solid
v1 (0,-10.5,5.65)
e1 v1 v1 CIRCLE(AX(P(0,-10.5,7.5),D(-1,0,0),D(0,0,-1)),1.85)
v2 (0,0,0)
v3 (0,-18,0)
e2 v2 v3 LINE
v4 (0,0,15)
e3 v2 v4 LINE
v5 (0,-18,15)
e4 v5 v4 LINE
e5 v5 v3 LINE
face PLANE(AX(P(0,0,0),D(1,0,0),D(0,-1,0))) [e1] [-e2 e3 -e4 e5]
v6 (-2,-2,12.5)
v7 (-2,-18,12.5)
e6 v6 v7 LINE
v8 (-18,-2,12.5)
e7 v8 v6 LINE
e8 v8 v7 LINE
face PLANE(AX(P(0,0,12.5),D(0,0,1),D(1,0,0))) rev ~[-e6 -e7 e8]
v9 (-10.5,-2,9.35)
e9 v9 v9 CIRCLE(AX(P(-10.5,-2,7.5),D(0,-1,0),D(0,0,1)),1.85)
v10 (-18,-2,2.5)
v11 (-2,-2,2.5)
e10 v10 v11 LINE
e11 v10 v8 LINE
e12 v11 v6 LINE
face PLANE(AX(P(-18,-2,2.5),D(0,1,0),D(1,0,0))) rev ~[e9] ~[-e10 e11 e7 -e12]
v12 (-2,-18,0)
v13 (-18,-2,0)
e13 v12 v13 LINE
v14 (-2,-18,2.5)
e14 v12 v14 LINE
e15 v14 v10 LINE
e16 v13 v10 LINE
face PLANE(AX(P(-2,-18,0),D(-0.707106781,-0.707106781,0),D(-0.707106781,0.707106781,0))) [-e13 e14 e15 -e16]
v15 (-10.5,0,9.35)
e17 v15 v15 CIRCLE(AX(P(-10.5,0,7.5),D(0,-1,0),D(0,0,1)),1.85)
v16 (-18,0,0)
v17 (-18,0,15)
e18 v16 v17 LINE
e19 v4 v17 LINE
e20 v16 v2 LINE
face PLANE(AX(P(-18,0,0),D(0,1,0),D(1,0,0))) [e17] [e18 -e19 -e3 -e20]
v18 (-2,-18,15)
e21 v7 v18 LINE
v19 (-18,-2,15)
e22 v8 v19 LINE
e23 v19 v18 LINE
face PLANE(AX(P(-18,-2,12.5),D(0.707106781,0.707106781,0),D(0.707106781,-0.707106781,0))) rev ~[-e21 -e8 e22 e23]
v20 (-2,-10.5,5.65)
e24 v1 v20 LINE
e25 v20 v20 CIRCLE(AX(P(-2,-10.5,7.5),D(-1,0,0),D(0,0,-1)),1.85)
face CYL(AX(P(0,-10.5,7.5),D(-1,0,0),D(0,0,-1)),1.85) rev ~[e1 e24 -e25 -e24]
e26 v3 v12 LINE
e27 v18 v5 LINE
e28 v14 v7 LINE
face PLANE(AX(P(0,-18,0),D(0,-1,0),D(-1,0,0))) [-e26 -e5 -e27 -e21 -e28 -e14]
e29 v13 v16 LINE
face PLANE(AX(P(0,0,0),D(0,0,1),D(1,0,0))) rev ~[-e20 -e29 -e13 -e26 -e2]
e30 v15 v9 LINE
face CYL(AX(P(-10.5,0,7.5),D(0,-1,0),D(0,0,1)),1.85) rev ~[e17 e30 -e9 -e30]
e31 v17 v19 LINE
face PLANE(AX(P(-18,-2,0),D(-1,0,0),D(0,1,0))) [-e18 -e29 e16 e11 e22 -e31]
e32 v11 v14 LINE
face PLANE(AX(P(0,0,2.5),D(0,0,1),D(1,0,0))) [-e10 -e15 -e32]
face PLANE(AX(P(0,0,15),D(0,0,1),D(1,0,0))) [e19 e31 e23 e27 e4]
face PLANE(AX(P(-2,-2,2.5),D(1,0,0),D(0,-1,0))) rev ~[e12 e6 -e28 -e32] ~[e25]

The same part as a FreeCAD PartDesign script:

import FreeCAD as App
import Part
import Sketcher


def add_polygon(sketch, points):
    """Adds a closed chain of lines whose ends are joined by coincident constraints."""
    first, n = sketch.GeometryCount, len(points)
    for a, b in zip(points, points[1:] + points[:1]):
        sketch.addGeometry(Part.LineSegment(App.Vector(*a, 0), App.Vector(*b, 0)), False)
    for i in range(n):
        sketch.addConstraint(Sketcher.Constraint("Coincident", first + i, 2, first + (i + 1) % n, 1))

doc = App.newDocument("Part")
body = doc.addObject("PartDesign::Body", "Body")

sketch1 = body.newObject("Sketcher::SketchObject", "Sketch")
sketch1.AttachmentSupport = (doc.getObject("XY_Plane"), [""])
sketch1.MapMode = "FlatFace"
add_polygon(sketch1, [(0, -18), (0, 0), (-18, 0), (-18, -2), (-2, -18)])
sketch1.addConstraint([
    Sketcher.Constraint("Vertical", 0),
    Sketcher.Constraint("Horizontal", 1),
    Sketcher.Constraint("Vertical", 2),
    Sketcher.Constraint("Horizontal", 4),
    Sketcher.Constraint("Coincident", 0, 2, -1, 1),
    Sketcher.Constraint("Equal", 1, 0),
    Sketcher.Constraint("Equal", 4, 2),
    Sketcher.Constraint("DistanceX", 1, 2, 1, 1, 18.0),
    Sketcher.Constraint("DistanceX", 4, 1, 4, 2, 2.0),
])
pad1 = body.newObject("PartDesign::Pad", "Pad")
pad1.Profile = sketch1
pad1.Length = 2.5

sketch2 = body.newObject("Sketcher::SketchObject", "Sketch001")
sketch2.AttachmentSupport = (doc.getObject("XY_Plane"), [""])
sketch2.MapMode = "FlatFace"
sketch2.AttachmentOffset = App.Placement(App.Vector(0, 0, 2.5), App.Rotation())
add_polygon(sketch2, [(-2, -18), (0, -18), (0, 0), (-18, 0), (-18, -2), (-2, -2)])
sketch2.addConstraint([
    Sketcher.Constraint("Horizontal", 0),
    Sketcher.Constraint("Vertical", 1),
    Sketcher.Constraint("Horizontal", 2),
    Sketcher.Constraint("Vertical", 3),
    Sketcher.Constraint("Horizontal", 4),
    Sketcher.Constraint("Vertical", 5),
    Sketcher.Constraint("Coincident", 1, 2, -1, 1),
    Sketcher.Constraint("Equal", 2, 1),
    Sketcher.Constraint("Equal", 0, 3),
    Sketcher.Constraint("DistanceX", 0, 1, 0, 2, 2.0),
    Sketcher.Constraint("DistanceX", 2, 2, 2, 1, 18.0),
])
pad2 = body.newObject("PartDesign::Pad", "Pad001")
pad2.Profile = sketch2
pad2.Length = 10

sketch3 = body.newObject("Sketcher::SketchObject", "Sketch002")
sketch3.AttachmentSupport = (doc.getObject("XY_Plane"), [""])
sketch3.MapMode = "FlatFace"
sketch3.AttachmentOffset = App.Placement(App.Vector(0, 0, 12.5), App.Rotation())
add_polygon(sketch3, [(-18, -2), (-2, -18), (0, -18), (0, 0), (-18, 0)])
sketch3.addConstraint([
    Sketcher.Constraint("Horizontal", 1),
    Sketcher.Constraint("Vertical", 2),
    Sketcher.Constraint("Horizontal", 3),
    Sketcher.Constraint("Vertical", 4),
    Sketcher.Constraint("Coincident", 2, 2, -1, 1),
    Sketcher.Constraint("Equal", 3, 2),
    Sketcher.Constraint("Equal", 1, 4),
    Sketcher.Constraint("DistanceX", 1, 1, 1, 2, 2.0),
    Sketcher.Constraint("DistanceX", 3, 2, 3, 1, 18.0),
])
pad3 = body.newObject("PartDesign::Pad", "Pad002")
pad3.Profile = sketch3
pad3.Length = 2.5

sketch4 = body.newObject("Sketcher::SketchObject", "Sketch003")
sketch4.AttachmentSupport = (doc.getObject("XZ_Plane"), [""])
sketch4.MapMode = "FlatFace"
sketch4.addGeometry(Part.Circle(App.Vector(-10.5, 7.5, 0), App.Vector(0, 0, 1), 1.85), False)
sketch4.addConstraint([
    Sketcher.Constraint("Diameter", 0, 3.7),
    Sketcher.Constraint("DistanceX", 0, 3, -1, 1, 10.5),
    Sketcher.Constraint("DistanceY", -1, 1, 0, 3, 7.5),
])
doc.recompute()
hole = body.newObject("PartDesign::Hole", "Hole")
hole.Profile = sketch4
hole.ThreadType = "None"
hole.Diameter = 3.7
hole.DepthType = "Dimension"
hole.Depth = 8
hole.DrillPoint = "Angled"
hole.DrillPointAngle = 118
hole.Reversed = True

sketch5 = body.newObject("Sketcher::SketchObject", "Sketch004")
sketch5.AttachmentSupport = (doc.getObject("YZ_Plane"), [""])
sketch5.MapMode = "FlatFace"
sketch5.addGeometry(Part.Circle(App.Vector(-10.5, 7.5, 0), App.Vector(0, 0, 1), 1.85), False)
sketch5.addConstraint([
    Sketcher.Constraint("Diameter", 0, 3.7),
    Sketcher.Constraint("DistanceX", 0, 3, -1, 1, 10.5),
    Sketcher.Constraint("DistanceY", -1, 1, 0, 3, 7.5),
])
doc.recompute()
hole2 = body.newObject("PartDesign::Hole", "Hole001")
hole2.Profile = sketch5
hole2.ThreadType = "None"
hole2.Diameter = 3.7
hole2.DepthType = "Dimension"
hole2.Depth = 8
hole2.DrillPoint = "Angled"
hole2.DrillPointAngle = 118

doc.recompute()
